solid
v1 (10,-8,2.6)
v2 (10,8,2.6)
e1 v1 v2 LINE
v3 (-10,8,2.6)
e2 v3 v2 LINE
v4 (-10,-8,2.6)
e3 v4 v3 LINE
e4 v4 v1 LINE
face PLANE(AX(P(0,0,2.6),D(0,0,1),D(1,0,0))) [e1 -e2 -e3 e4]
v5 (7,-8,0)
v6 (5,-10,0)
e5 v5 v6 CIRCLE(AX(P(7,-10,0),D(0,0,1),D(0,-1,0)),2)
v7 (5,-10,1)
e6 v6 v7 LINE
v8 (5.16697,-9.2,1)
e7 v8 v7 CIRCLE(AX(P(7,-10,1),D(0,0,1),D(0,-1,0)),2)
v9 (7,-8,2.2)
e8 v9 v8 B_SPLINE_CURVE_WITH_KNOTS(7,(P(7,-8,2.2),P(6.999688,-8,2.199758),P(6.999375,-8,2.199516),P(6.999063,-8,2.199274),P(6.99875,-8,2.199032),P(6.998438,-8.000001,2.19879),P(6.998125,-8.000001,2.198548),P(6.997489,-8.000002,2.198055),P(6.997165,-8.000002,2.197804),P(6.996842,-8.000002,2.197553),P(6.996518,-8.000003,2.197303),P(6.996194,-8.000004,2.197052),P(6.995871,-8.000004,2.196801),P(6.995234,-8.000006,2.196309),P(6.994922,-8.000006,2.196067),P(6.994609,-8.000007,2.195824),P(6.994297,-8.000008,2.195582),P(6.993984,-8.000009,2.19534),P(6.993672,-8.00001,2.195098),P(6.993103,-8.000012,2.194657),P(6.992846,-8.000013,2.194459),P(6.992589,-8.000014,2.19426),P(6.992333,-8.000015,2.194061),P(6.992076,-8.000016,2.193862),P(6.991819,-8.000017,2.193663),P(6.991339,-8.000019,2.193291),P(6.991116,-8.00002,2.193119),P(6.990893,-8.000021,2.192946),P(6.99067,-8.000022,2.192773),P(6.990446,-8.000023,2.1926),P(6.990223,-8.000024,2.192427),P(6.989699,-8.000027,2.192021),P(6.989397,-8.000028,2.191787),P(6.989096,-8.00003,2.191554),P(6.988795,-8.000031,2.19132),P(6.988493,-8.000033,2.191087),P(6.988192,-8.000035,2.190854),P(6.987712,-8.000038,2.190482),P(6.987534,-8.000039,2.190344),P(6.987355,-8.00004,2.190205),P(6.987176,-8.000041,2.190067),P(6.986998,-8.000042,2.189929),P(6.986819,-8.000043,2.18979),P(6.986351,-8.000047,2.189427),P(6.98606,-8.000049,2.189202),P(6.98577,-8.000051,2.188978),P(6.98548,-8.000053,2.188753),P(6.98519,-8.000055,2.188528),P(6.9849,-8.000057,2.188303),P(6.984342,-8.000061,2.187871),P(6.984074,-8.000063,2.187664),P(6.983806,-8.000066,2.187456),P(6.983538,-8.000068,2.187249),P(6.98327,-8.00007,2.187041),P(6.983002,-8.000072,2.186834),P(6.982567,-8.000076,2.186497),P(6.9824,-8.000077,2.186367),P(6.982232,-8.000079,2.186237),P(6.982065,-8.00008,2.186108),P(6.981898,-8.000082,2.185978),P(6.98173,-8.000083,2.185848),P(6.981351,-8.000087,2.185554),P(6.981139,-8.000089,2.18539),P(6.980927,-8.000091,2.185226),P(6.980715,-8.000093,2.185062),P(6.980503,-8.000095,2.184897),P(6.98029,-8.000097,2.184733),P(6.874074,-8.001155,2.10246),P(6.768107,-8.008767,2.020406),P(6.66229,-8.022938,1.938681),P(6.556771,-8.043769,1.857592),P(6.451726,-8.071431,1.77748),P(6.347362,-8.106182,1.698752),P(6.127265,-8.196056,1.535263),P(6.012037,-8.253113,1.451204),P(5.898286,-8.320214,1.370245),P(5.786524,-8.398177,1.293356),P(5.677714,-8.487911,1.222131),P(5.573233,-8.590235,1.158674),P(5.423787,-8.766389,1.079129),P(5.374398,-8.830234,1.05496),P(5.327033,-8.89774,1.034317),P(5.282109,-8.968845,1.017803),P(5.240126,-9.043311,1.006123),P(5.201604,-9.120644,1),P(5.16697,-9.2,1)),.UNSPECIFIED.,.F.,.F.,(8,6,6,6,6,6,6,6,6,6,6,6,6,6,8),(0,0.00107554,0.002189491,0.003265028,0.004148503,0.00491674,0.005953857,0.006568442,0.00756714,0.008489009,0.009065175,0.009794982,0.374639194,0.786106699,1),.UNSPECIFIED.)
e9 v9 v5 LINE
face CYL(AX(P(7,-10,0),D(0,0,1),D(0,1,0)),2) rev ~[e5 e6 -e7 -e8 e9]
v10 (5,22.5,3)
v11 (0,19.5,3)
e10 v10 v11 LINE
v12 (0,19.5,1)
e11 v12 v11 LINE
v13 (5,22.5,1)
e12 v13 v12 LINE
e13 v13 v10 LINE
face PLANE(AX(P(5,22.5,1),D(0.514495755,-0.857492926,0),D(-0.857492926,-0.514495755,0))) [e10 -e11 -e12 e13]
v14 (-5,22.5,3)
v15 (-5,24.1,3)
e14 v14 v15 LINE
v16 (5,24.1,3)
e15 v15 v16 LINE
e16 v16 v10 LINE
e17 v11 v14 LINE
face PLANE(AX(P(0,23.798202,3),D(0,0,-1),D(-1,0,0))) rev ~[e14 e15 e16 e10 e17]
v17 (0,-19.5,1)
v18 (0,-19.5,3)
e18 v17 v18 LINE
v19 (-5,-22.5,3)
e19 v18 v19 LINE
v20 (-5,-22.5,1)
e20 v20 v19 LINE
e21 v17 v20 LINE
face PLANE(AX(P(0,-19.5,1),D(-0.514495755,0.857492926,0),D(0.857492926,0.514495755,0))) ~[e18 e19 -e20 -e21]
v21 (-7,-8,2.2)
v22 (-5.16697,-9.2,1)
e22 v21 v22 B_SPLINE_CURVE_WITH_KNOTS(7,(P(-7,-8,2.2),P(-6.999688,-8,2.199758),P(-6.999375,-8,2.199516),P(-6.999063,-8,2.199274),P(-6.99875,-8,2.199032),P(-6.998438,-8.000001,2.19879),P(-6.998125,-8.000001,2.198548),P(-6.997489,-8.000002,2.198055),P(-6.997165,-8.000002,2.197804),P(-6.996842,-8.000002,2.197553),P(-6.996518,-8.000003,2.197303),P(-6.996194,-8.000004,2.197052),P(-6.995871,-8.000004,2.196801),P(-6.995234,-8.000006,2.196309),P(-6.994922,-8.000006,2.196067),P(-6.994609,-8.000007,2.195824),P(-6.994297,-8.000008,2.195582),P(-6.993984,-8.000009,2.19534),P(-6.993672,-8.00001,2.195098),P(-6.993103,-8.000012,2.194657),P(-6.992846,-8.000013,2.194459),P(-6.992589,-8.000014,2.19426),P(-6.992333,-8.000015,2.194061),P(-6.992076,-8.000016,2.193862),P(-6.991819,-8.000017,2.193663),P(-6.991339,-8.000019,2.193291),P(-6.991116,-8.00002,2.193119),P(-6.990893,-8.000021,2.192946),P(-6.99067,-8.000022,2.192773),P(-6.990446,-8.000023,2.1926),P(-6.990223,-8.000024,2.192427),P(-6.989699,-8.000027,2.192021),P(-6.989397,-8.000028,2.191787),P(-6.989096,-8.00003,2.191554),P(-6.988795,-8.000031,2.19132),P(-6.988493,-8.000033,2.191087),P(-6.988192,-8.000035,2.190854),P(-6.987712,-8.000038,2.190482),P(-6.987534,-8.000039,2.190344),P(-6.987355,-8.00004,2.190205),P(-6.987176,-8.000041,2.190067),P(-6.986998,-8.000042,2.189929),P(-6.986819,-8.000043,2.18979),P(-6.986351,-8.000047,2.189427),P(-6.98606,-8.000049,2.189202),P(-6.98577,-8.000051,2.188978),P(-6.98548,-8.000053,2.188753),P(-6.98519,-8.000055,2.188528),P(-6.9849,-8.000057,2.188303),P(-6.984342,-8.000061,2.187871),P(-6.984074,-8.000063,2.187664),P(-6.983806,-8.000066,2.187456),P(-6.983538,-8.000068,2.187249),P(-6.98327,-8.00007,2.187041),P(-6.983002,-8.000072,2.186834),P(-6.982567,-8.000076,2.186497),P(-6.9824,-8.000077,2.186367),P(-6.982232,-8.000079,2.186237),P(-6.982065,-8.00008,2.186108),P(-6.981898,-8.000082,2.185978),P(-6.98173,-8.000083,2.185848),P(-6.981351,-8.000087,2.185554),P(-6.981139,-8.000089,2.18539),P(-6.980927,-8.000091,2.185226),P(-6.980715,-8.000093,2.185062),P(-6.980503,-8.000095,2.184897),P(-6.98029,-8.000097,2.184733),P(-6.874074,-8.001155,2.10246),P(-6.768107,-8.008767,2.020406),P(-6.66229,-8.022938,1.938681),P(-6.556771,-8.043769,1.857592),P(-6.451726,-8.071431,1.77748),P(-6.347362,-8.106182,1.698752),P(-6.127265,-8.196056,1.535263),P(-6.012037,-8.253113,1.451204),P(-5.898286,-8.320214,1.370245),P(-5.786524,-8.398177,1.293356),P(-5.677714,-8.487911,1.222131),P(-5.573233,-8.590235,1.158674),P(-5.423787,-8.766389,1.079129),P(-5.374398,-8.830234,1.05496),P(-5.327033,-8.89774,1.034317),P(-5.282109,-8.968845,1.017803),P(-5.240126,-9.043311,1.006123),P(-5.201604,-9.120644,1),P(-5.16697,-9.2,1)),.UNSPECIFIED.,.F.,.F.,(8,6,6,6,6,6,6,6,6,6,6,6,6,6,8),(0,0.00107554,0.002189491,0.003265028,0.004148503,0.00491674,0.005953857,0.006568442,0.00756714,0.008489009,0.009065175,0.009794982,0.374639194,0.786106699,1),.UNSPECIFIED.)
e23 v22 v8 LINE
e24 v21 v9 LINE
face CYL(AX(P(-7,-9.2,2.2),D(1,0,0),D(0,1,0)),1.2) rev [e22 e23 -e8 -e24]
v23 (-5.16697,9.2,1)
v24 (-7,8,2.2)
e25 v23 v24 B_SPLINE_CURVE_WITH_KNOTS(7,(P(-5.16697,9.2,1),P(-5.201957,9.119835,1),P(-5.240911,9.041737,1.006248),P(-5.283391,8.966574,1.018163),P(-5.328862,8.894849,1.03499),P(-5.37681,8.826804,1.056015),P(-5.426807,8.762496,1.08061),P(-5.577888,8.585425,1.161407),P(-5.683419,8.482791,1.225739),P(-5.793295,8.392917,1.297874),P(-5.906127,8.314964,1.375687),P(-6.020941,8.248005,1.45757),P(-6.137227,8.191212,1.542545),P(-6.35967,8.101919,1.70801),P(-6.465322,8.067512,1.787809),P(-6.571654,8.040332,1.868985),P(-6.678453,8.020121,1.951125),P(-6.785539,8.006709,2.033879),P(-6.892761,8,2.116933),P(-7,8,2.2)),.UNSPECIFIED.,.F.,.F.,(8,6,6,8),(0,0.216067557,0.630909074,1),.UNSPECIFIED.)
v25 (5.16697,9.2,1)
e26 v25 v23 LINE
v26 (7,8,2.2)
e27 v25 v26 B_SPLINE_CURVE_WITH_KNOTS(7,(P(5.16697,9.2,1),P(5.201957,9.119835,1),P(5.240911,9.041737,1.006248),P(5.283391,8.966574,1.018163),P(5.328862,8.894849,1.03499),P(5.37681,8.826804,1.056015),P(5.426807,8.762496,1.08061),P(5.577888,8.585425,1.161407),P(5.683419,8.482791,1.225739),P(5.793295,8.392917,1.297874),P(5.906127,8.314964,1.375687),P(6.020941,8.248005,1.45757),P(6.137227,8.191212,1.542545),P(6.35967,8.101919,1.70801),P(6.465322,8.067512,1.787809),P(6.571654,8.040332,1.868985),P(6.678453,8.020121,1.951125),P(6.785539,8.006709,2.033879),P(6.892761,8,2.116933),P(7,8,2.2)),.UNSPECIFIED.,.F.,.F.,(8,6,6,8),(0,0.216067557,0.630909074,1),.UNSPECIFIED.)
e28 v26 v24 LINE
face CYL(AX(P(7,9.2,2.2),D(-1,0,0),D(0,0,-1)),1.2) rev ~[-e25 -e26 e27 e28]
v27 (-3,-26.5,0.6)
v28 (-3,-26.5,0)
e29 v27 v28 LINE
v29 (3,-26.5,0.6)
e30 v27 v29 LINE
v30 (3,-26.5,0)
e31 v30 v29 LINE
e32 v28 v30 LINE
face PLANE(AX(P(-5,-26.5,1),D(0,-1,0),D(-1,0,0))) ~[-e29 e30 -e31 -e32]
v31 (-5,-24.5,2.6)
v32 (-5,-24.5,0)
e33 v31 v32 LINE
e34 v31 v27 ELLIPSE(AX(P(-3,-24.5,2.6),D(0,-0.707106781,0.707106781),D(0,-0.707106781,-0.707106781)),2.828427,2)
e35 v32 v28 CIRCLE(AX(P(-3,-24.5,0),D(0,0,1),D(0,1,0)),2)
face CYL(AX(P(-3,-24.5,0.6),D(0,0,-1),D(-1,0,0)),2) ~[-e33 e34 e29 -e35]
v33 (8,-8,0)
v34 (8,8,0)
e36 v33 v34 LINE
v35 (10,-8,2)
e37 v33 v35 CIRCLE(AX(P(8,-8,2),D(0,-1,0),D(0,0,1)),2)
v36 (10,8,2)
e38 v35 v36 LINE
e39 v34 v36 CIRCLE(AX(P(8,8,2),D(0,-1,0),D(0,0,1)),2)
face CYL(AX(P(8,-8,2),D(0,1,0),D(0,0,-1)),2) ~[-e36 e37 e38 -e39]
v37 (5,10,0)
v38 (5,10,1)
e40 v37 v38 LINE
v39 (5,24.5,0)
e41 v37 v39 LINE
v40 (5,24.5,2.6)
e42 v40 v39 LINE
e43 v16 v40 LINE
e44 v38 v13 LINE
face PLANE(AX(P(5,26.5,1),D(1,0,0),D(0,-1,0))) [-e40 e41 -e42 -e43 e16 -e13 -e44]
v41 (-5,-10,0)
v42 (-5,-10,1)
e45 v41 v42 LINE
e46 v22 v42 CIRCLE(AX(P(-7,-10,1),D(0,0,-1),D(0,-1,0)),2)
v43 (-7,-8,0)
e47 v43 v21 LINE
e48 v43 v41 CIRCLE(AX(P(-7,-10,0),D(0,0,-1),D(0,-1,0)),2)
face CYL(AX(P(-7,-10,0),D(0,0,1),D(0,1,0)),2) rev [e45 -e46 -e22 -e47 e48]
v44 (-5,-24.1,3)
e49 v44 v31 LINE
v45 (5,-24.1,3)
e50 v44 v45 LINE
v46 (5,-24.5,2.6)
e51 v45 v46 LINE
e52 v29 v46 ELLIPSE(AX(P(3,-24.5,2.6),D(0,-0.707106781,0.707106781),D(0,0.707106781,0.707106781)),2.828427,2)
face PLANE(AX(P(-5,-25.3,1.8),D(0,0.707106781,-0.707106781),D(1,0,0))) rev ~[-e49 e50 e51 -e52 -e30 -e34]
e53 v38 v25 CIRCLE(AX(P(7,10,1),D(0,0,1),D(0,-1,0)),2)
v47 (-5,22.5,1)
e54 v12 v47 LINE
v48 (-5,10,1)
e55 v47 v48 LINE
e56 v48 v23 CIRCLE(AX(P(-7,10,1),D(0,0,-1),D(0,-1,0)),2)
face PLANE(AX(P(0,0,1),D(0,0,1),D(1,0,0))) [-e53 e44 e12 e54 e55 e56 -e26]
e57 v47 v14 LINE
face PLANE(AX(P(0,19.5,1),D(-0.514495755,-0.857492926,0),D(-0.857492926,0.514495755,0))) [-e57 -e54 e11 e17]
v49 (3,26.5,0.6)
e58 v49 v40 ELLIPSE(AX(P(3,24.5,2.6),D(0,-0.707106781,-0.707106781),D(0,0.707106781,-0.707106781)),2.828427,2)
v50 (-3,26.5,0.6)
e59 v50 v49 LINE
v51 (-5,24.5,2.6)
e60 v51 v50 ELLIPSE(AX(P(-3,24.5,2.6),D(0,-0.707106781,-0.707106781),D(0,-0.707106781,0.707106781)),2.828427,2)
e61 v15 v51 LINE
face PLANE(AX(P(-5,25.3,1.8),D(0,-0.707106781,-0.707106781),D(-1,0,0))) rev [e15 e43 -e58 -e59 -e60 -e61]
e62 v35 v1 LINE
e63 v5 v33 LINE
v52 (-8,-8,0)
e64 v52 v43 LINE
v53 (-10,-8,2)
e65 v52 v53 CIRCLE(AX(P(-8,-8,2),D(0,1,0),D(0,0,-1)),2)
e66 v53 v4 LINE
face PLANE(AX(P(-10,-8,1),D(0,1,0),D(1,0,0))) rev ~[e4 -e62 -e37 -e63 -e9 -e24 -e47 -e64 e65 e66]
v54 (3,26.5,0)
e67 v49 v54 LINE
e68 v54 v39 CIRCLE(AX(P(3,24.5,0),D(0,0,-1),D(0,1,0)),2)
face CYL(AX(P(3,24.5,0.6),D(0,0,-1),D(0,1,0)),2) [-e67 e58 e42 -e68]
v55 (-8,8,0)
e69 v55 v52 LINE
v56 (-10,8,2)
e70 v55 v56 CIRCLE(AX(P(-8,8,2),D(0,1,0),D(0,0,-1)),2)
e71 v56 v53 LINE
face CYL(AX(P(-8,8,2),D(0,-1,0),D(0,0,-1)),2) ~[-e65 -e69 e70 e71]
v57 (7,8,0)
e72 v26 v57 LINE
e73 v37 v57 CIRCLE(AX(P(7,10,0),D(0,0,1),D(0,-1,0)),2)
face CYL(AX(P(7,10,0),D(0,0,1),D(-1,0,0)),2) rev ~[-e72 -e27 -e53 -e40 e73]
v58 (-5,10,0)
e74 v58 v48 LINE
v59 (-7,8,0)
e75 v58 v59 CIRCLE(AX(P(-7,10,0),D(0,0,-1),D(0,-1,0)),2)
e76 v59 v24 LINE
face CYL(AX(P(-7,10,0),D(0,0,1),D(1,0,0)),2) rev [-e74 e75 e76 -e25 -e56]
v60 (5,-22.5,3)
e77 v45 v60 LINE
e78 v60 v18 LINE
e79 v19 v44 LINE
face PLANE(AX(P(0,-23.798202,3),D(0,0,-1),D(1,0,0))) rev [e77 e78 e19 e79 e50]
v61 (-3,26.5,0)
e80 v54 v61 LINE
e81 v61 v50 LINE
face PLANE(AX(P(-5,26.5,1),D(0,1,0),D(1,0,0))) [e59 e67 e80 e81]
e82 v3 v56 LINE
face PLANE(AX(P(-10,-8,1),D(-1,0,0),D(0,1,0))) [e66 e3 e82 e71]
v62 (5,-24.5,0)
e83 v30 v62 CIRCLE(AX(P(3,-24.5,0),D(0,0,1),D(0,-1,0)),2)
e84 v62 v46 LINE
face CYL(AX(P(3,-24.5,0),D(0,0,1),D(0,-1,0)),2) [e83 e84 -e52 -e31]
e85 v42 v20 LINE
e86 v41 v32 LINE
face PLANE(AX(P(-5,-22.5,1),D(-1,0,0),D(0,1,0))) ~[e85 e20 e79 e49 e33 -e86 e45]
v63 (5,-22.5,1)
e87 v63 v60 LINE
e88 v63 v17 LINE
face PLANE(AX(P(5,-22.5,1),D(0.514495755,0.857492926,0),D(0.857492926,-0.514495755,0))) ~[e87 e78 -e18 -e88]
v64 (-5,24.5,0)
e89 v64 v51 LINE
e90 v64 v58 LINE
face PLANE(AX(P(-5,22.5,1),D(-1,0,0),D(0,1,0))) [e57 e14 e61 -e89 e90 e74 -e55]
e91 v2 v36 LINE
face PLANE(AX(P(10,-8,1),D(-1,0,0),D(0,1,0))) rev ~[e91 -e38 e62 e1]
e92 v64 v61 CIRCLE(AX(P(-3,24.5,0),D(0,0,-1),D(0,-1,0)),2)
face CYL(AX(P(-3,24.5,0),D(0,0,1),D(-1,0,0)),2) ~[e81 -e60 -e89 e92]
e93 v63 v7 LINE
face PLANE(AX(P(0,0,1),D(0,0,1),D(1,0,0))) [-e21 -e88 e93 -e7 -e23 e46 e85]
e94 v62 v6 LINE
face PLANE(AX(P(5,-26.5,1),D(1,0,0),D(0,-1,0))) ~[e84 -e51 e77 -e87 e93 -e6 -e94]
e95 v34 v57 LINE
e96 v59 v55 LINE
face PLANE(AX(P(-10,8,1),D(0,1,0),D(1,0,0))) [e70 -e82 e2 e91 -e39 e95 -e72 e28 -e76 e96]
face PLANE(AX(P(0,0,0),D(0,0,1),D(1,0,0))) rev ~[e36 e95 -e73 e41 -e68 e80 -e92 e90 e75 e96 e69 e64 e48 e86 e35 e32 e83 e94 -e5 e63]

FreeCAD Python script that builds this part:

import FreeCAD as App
import Part
import Sketcher
from FreeCAD import Vector


def edges_at(feature, points):
    """Names of the edges that pass closest to the given points."""
    edges = feature.Shape.Edges
    near = lambda p: min(range(len(edges)), key=lambda i: edges[i].distToShape(Part.Vertex(*p))[0])
    return sorted({f"Edge{near(p) + 1}" for p in points})

doc = App.newDocument("Part")
body = doc.addObject("PartDesign::Body", "Body")

# Sketch on XY plane
sketch1 = body.newObject("Sketcher::SketchObject", "Sketch")
sketch1.AttachmentSupport = (doc.getObject("XY_Plane"), [""])
sketch1.MapMode = "FlatFace"
sketch1.addGeometry([
    Part.LineSegment(Vector(-10, 8, 0), Vector(-10, -8, 0)),  # 0
    Part.LineSegment(Vector(-10, -8, 0), Vector(-5, -8, 0)),  # 1
    Part.LineSegment(Vector(-5, -8, 0), Vector(-5, -26, 0)),  # 2
    Part.LineSegment(Vector(-5, -26, 0), Vector(5, -26, 0)),  # 3
    Part.LineSegment(Vector(5, -26, 0), Vector(5, -8, 0)),  # 4
    Part.LineSegment(Vector(5, -8, 0), Vector(10, -8, 0)),  # 5
    Part.LineSegment(Vector(10, -8, 0), Vector(10, 8, 0)),  # 6
    Part.LineSegment(Vector(10, 8, 0), Vector(5, 8, 0)),  # 7
    Part.LineSegment(Vector(5, 8, 0), Vector(5, 26, 0)),  # 8
    Part.LineSegment(Vector(5, 26, 0), Vector(-5, 26, 0)),  # 9
    Part.LineSegment(Vector(-5, 26, 0), Vector(-5, 8, 0)),  # 10
    Part.LineSegment(Vector(-5, 8, 0), Vector(-10, 8, 0)),  # 11
], False)
sketch1.addConstraint([
    Sketcher.Constraint("Coincident", 0, 2, 1, 1),
    Sketcher.Constraint("Coincident", 1, 2, 2, 1),
    Sketcher.Constraint("Coincident", 2, 2, 3, 1),
    Sketcher.Constraint("Coincident", 3, 2, 4, 1),
    Sketcher.Constraint("Coincident", 4, 2, 5, 1),
    Sketcher.Constraint("Coincident", 5, 2, 6, 1),
    Sketcher.Constraint("Coincident", 6, 2, 7, 1),
    Sketcher.Constraint("Coincident", 7, 2, 8, 1),
    Sketcher.Constraint("Coincident", 8, 2, 9, 1),
    Sketcher.Constraint("Coincident", 9, 2, 10, 1),
    Sketcher.Constraint("Coincident", 10, 2, 11, 1),
    Sketcher.Constraint("Coincident", 11, 2, 0, 1),
    Sketcher.Constraint("Vertical", 0),
    Sketcher.Constraint("Horizontal", 1),
    Sketcher.Constraint("Vertical", 2),
    Sketcher.Constraint("Horizontal", 3),
    Sketcher.Constraint("Vertical", 4),
    Sketcher.Constraint("Horizontal", 5),
    Sketcher.Constraint("Vertical", 6),
    Sketcher.Constraint("Horizontal", 7),
    Sketcher.Constraint("Vertical", 8),
    Sketcher.Constraint("Horizontal", 9),
    Sketcher.Constraint("Vertical", 10),
    Sketcher.Constraint("Horizontal", 11),
    Sketcher.Constraint("Symmetric", 0, 2, 6, 2, -1, 1),
    Sketcher.Constraint("Symmetric", 2, 2, 8, 2, -1, 1),
    Sketcher.Constraint("Symmetric", 4, 2, 10, 2, -1, 1),
    Sketcher.Constraint("Symmetric", 1, 2, 4, 2, -2),
    Sketcher.Constraint("DistanceX", 1, 1, 1, 2, 5.0),
    Sketcher.Constraint("DistanceX", 3, 1, 3, 2, 10.0),
    Sketcher.Constraint("DistanceY", 0, 2, 0, 1, 16.0),
    Sketcher.Constraint("DistanceY", 2, 2, 2, 1, 18.5),
])
pad1 = body.newObject("PartDesign::Pad", "Pad")
pad1.Profile = sketch1
pad1.Length = 1

# Sketch on XY plane
sketch2 = body.newObject("Sketcher::SketchObject", "Sketch001")
sketch2.AttachmentSupport = (doc.getObject("XY_Plane"), [""])
sketch2.MapMode = "FlatFace"
sketch2.AttachmentOffset = App.Placement(Vector(0, 0, 1), App.Rotation())
sketch2.addGeometry([
    Part.LineSegment(Vector(-10, 8, 0), Vector(-10, -8, 0)),
    Part.LineSegment(Vector(-10, -8, 0), Vector(10, -8, 0)),
    Part.LineSegment(Vector(10, -8, 0), Vector(10, 8, 0)),
    Part.LineSegment(Vector(10, 8, 0), Vector(-10, 8, 0)),
], False)
sketch2.addConstraint([
    Sketcher.Constraint("Coincident", 0, 2, 1, 1),
    Sketcher.Constraint("Coincident", 1, 2, 2, 1),
    Sketcher.Constraint("Coincident", 2, 2, 3, 1),
    Sketcher.Constraint("Coincident", 3, 2, 0, 1),
    Sketcher.Constraint("Vertical", 0),
    Sketcher.Constraint("Horizontal", 1),
    Sketcher.Constraint("Vertical", 2),
    Sketcher.Constraint("Horizontal", 3),
    Sketcher.Constraint("Symmetric", 0, 2, 2, 2, -1, 1),
    Sketcher.Constraint("DistanceX", 1, 1, 1, 2, 20.0),
    Sketcher.Constraint("DistanceY", 0, 2, 0, 1, 16.0),
])
pad2 = body.newObject("PartDesign::Pad", "Pad001")
pad2.Profile = sketch2
pad2.Length = 1.6

# Sketch on XY plane
sketch3 = body.newObject("Sketcher::SketchObject", "Sketch002")
sketch3.AttachmentSupport = (doc.getObject("XY_Plane"), [""])
sketch3.MapMode = "FlatFace"
sketch3.AttachmentOffset = App.Placement(Vector(0, 0, 1), App.Rotation())
sketch3.addGeometry([
    Part.LineSegment(Vector(5, 26.5, 0), Vector(-5, 26.5, 0)),  # 0
    Part.LineSegment(Vector(-5, 26.5, 0), Vector(-5, 22.5, 0)),  # 1
    Part.LineSegment(Vector(-5, 22.5, 0), Vector(0, 19.5, 0)),  # 2
    Part.LineSegment(Vector(0, 19.5, 0), Vector(5, 22.5, 0)),  # 3
    Part.LineSegment(Vector(5, 22.5, 0), Vector(5, 26.5, 0)),  # 4
], False)
sketch3.addConstraint([
    Sketcher.Constraint("Coincident", 0, 2, 1, 1),
    Sketcher.Constraint("Coincident", 1, 2, 2, 1),
    Sketcher.Constraint("Coincident", 2, 2, 3, 1),
    Sketcher.Constraint("Coincident", 3, 2, 4, 1),
    Sketcher.Constraint("Coincident", 4, 2, 0, 1),
    Sketcher.Constraint("Horizontal", 0),
    Sketcher.Constraint("Vertical", 1),
    Sketcher.Constraint("Vertical", 4),
    Sketcher.Constraint("Symmetric", 1, 2, 3, 2, -2),
    Sketcher.Constraint("PointOnObject", 2, 2, -2),
    Sketcher.Constraint("DistanceX", 0, 2, 0, 1, 10.0),
    Sketcher.Constraint("DistanceY", 1, 2, 1, 1, 4.0),
    Sketcher.Constraint("DistanceY", 2, 2, 1, 2, 3.0),
    Sketcher.Constraint("DistanceY", -1, 1, 0, 2, 26.5),
])
pad3 = body.newObject("PartDesign::Pad", "Pad002")
pad3.Profile = sketch3
pad3.Length = 2
doc.recompute()

mirrored = body.newObject("PartDesign::Mirrored", "Mirrored")
mirrored.Originals = [pad3]
mirrored.MirrorPlane = (doc.getObject("XZ_Plane"), [""])
body.Tip = mirrored
doc.recompute()

fillet = body.newObject("PartDesign::Fillet", "Fillet")
fillet.Base = (mirrored, edges_at(mirrored, [
    (5, -8, 0.5),
    (-5, -8, 0.5),
    (-5, 8, 0.5),
    (5, 8, 0.5),
]))
fillet.Radius = 2
doc.recompute()

chamfer = body.newObject("PartDesign::Chamfer", "Chamfer")
chamfer.Base = (fillet, edges_at(fillet, [(0, 26.5, 3), (0, -26.5, 3)]))
chamfer.Size = 2.4
doc.recompute()

fillet2 = body.newObject("PartDesign::Fillet", "Fillet001")
fillet2.Base = (chamfer, edges_at(chamfer, [(0, 8, 1), (0, -8, 1)]))
fillet2.Radius = 1.2
doc.recompute()

fillet3 = body.newObject("PartDesign::Fillet", "Fillet002")
fillet3.Base = (fillet2, edges_at(fillet2, [(10, 0, 0), (-10, 0, 0)]))
fillet3.Radius = 2
doc.recompute()

fillet4 = body.newObject("PartDesign::Fillet", "Fillet003")
fillet4.Base = (fillet3, edges_at(fillet3, [
    (-5, -26.5, 0.3),
    (5, -26.5, 0.3),
    (-5, 26.5, 0.3),
    (5, 26.5, 0.3),
]))
fillet4.Radius = 2

doc.recompute()
